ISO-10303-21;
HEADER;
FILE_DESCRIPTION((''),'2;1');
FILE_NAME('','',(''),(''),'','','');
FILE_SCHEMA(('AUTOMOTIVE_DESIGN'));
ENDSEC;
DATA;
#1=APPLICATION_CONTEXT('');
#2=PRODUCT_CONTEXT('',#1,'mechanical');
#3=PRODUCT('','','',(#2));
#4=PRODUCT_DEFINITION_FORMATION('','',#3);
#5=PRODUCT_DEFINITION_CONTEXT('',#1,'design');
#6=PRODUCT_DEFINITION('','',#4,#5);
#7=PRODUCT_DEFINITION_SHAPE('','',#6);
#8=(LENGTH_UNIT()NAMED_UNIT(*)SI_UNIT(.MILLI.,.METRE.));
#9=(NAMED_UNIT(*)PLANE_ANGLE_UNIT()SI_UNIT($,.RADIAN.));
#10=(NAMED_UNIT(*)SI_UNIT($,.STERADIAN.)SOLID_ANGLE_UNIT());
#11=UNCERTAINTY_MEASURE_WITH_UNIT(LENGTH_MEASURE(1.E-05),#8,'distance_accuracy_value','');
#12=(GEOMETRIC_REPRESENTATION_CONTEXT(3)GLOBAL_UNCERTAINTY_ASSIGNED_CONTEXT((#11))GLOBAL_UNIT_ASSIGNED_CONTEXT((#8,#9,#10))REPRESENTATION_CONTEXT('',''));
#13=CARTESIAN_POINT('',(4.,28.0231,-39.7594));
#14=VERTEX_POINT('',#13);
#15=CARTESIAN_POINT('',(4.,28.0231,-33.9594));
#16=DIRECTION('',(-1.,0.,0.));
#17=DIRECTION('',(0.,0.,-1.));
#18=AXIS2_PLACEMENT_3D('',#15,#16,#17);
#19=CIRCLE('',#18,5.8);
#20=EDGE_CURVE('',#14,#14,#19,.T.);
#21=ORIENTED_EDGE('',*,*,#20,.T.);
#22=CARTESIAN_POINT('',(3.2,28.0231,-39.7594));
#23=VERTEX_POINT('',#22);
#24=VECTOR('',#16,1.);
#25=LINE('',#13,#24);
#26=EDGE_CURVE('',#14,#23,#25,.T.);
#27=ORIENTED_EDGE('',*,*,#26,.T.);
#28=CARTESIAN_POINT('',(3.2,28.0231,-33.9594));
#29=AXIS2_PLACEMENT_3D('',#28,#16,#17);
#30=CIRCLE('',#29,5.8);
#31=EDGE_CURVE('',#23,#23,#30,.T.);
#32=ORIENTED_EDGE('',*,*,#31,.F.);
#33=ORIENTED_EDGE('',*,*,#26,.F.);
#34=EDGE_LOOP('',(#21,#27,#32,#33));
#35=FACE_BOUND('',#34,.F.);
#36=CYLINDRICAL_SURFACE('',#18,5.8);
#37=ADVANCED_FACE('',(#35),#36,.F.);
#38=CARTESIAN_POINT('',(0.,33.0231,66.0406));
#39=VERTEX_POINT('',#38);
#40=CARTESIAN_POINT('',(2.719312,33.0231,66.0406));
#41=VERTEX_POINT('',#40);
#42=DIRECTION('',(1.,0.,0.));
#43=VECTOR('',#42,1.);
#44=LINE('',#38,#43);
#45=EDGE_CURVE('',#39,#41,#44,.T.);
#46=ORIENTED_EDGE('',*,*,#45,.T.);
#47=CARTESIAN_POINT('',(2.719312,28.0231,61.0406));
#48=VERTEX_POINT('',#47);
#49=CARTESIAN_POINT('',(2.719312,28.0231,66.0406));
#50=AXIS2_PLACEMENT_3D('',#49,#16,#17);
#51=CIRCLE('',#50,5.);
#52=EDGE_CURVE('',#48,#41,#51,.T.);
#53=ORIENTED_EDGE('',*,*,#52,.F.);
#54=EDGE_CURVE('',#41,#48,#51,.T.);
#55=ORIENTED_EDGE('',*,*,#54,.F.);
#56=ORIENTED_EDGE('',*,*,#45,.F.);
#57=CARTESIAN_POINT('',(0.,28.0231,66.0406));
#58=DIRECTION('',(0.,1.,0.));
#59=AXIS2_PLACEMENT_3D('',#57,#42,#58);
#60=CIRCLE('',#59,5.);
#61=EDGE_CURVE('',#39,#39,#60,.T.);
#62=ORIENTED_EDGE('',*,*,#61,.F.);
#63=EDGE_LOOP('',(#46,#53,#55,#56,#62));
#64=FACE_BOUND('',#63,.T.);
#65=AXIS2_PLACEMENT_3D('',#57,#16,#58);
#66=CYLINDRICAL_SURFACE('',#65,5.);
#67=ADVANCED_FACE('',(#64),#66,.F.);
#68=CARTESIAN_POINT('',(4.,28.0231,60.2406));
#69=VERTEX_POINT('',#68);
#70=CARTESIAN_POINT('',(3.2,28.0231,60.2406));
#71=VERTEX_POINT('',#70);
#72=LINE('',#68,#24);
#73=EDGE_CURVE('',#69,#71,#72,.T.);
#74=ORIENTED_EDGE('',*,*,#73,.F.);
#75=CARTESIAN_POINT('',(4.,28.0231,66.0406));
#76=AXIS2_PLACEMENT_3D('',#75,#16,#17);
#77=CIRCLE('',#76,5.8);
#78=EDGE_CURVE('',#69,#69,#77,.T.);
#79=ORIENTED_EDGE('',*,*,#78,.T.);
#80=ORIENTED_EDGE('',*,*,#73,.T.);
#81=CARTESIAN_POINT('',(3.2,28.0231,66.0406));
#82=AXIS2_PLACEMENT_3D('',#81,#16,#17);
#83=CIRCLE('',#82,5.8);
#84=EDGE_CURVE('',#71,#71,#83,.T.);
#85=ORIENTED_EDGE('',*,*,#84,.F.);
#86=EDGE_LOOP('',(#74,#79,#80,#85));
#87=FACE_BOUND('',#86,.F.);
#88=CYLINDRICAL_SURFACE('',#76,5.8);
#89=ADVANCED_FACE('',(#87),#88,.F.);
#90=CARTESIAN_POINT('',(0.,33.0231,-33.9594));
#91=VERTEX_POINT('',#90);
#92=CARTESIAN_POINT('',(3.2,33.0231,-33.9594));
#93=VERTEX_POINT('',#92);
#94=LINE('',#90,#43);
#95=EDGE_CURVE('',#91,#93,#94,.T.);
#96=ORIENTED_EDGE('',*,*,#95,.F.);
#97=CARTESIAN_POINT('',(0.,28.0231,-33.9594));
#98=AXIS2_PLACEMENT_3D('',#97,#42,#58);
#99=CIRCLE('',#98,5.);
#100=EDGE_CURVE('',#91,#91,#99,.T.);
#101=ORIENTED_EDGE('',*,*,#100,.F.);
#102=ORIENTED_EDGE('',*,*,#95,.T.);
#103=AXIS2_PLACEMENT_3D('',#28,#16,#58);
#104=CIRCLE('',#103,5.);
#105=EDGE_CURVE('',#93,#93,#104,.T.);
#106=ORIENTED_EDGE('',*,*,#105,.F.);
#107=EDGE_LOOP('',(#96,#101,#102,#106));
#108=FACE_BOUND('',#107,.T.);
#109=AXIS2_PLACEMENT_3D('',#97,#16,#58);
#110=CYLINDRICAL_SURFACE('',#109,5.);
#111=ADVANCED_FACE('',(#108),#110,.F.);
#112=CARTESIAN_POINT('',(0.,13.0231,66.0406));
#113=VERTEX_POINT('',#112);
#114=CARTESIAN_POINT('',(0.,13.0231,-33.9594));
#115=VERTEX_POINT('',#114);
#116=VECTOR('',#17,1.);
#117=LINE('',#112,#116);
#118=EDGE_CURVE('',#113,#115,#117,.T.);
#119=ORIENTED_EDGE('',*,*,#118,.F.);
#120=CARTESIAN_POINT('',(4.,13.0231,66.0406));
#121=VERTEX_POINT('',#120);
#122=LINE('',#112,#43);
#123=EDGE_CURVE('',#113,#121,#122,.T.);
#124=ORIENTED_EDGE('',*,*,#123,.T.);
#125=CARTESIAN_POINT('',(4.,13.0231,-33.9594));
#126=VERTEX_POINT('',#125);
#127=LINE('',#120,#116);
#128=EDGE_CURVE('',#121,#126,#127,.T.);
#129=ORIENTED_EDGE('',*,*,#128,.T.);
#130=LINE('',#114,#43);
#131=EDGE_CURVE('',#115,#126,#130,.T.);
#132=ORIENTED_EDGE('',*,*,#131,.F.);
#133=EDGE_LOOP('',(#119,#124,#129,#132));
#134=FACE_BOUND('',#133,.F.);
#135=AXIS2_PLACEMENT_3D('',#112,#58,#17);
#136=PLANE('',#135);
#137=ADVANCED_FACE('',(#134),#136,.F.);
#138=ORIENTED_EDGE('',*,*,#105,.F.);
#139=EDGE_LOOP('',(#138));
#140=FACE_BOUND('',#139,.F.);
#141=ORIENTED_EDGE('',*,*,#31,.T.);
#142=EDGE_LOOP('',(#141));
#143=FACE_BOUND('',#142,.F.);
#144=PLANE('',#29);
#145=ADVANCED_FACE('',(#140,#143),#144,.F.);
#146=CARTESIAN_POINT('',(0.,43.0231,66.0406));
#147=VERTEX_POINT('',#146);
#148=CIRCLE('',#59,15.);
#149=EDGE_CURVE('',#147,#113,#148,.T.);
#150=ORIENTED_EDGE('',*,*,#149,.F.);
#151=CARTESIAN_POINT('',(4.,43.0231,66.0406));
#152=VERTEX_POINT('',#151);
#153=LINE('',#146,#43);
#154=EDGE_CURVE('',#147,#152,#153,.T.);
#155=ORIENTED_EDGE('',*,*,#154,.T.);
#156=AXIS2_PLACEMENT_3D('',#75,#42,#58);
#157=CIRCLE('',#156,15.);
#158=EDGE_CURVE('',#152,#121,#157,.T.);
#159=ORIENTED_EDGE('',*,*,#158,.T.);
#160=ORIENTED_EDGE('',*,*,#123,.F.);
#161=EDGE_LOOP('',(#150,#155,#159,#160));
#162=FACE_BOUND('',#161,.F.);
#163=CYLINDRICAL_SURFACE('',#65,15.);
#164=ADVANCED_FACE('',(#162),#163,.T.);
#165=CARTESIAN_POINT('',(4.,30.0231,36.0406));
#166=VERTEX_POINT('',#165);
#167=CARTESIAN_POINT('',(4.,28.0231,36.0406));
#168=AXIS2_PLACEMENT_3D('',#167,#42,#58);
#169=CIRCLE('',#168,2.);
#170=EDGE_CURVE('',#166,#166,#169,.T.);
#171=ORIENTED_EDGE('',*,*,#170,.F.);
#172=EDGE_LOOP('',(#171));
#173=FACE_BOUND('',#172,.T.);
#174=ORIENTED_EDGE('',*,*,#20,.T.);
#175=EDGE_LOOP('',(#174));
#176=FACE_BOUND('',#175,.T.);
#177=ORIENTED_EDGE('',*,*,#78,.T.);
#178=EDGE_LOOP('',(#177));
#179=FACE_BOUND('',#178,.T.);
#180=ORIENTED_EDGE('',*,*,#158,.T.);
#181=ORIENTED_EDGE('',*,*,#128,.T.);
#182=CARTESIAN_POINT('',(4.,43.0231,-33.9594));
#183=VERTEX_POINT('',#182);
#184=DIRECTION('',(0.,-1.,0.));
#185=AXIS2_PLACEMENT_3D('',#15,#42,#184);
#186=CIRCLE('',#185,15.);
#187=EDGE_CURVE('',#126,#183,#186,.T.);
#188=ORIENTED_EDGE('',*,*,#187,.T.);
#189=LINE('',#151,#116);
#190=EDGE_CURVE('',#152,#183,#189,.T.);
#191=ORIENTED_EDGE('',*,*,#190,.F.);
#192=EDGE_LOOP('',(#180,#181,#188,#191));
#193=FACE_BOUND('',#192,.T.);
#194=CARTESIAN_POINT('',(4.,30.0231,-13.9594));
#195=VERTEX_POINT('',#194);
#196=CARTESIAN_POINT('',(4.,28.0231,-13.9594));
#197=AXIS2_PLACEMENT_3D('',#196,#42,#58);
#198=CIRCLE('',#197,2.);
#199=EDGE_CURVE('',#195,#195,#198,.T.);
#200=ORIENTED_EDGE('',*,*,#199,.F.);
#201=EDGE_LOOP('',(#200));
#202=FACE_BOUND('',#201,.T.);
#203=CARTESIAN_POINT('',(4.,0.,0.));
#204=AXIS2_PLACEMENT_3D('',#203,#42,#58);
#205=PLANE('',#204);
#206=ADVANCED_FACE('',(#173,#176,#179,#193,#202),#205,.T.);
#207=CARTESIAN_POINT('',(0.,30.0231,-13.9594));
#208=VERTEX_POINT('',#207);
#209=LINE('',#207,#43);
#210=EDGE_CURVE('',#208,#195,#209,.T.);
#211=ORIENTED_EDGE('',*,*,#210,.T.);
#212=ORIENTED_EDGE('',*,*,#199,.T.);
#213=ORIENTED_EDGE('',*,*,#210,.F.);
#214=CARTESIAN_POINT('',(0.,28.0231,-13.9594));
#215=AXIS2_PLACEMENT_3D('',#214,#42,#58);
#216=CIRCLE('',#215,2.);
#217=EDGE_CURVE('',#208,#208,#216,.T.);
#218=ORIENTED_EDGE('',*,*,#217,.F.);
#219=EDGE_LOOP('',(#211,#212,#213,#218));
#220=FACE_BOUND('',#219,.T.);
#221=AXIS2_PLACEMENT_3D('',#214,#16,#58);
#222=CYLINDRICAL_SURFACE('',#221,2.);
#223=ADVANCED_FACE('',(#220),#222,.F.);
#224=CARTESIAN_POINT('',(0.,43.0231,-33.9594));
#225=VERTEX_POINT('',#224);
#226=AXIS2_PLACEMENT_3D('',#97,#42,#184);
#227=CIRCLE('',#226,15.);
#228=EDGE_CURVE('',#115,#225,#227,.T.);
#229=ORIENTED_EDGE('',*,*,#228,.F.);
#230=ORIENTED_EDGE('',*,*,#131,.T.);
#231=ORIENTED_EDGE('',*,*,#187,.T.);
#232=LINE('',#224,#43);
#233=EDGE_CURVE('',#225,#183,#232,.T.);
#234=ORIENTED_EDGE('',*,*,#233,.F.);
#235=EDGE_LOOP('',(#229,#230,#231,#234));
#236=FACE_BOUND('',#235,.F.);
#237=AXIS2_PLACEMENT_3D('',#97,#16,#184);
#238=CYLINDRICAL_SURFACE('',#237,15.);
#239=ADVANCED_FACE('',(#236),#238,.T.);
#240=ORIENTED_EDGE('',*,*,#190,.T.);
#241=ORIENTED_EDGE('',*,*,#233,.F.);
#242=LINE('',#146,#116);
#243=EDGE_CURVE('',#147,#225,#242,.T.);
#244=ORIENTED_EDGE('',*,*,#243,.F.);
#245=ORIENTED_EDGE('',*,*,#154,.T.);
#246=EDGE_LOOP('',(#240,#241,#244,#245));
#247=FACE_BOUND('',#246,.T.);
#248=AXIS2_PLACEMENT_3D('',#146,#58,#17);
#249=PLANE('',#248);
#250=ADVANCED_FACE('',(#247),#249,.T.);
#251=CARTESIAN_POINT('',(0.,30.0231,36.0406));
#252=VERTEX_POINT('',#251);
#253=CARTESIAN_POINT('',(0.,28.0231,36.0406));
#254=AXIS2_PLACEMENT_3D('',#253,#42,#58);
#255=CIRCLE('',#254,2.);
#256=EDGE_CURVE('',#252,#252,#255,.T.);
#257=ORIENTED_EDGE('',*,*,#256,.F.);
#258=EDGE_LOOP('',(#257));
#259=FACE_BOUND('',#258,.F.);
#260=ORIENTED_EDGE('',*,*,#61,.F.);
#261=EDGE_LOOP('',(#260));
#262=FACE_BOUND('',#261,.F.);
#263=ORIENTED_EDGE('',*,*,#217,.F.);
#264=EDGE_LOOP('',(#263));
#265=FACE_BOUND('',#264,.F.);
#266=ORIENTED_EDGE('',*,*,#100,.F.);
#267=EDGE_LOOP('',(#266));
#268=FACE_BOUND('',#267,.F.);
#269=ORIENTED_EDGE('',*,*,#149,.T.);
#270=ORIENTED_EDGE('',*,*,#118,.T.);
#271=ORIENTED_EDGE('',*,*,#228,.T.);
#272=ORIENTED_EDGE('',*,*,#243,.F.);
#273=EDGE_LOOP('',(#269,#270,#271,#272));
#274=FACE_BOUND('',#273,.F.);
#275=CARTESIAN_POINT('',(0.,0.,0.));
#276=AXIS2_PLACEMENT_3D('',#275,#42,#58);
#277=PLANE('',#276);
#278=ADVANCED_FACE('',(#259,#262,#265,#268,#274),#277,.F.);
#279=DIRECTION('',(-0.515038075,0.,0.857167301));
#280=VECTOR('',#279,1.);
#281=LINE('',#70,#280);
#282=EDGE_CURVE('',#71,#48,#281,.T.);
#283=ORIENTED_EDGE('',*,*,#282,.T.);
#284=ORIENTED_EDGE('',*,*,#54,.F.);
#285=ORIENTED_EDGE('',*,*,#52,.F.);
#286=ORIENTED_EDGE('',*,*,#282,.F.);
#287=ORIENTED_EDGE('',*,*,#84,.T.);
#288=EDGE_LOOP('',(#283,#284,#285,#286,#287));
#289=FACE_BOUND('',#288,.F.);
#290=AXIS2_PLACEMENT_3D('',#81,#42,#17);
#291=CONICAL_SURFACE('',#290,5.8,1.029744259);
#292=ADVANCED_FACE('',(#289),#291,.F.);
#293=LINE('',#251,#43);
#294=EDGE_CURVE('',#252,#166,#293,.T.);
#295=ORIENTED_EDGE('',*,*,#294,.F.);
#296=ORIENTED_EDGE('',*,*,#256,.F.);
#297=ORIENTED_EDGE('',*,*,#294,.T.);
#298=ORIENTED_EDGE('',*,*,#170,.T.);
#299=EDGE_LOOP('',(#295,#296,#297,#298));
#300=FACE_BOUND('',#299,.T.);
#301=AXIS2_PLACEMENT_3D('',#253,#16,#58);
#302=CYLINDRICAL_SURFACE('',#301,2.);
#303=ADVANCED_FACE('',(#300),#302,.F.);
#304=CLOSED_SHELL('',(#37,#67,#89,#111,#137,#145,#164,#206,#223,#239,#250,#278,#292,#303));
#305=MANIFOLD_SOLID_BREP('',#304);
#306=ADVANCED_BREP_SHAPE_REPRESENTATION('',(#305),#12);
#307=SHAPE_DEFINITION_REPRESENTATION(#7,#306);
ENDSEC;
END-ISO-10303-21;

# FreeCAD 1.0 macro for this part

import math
import FreeCAD as App
import Part
import Sketcher
Q = App.Units.Quantity

doc = App.newDocument("Part")
params = doc.addObject("Spreadsheet::Sheet", "Params")
for row, (alias, value) in enumerate([
    ("sketch1_diameter", "10 mm"),
    ("sketch1_diameter2", "4 mm"),
    ("sketch1_radius", "15 mm"),
    ("sketch1_height", "100 mm"),
    ("pad1_length", "4 mm"),
    ("sketch2_diameter", "11.6 mm"),
    ("hole_diameter", "11.6 mm"),
    ("hole_depth", "0.8 mm"),
    ("sketch3_diameter", "11.6 mm"),
    ("hole2_diameter", "11.6 mm"),
    ("hole2_depth", "0.8 mm"),
], start=1):
    params.set(f"A{row}", alias)
    params.set(f"B{row}", "=" + value)
    params.setAlias(f"B{row}", alias)

body = doc.addObject("PartDesign::Body", "Body")

# Sketch on YZ plane
sketch1 = doc.addObject("Sketcher::SketchObject", "Sketch")
body.addObject(sketch1)
sketch1.AttachmentSupport = (doc.YZ_Plane, [""])
sketch1.MapMode = "FlatFace"
sketch1.addGeometry([
    Part.LineSegment(App.Vector(43.0231, -33.9594, 0), App.Vector(43.0231, 66.0406, 0)),  # 0
    Part.ArcOfCircle(Part.Circle(App.Vector(28.0231, 66.0406, 0), App.Vector(0, 0, 1), 15), math.radians(0), math.radians(180)),  # 1
    Part.LineSegment(App.Vector(13.0231, 66.0406, 0), App.Vector(13.0231, -33.9594, 0)),  # 2
    Part.ArcOfCircle(Part.Circle(App.Vector(28.0231, -33.9594, 0), App.Vector(0, 0, 1), 15), math.radians(180), math.radians(360)),  # 3
    Part.Circle(App.Vector(28.0231, -33.9594, 0), App.Vector(0, 0, 1), 5),  # 4
    Part.Circle(App.Vector(28.0231, -13.9594, 0), App.Vector(0, 0, 1), 2),  # 5
    Part.Circle(App.Vector(28.0231, 36.0406, 0), App.Vector(0, 0, 1), 2),  # 6
    Part.Circle(App.Vector(28.0231, 66.0406, 0), App.Vector(0, 0, 1), 5),  # 7
], False)
sketch1.addConstraint([
    Sketcher.Constraint("Tangent", 0, 2, 1, 1),
    Sketcher.Constraint("Tangent", 1, 2, 2, 1),
    Sketcher.Constraint("Tangent", 2, 2, 3, 1),
    Sketcher.Constraint("Tangent", 3, 2, 0, 1),
    Sketcher.Constraint("Vertical", 0),
    Sketcher.Constraint("Vertical", 2),
    Sketcher.Constraint("Coincident", 4, 3, 3, 3),
    Sketcher.Constraint("Coincident", 7, 3, 1, 3),
    Sketcher.Constraint("Equal", 5, 6),
    Sketcher.Constraint("Equal", 4, 7),
    Sketcher.Constraint("Vertical", 4, 3, 5, 3),
    Sketcher.Constraint("Vertical", 5, 3, 6, 3),
    Sketcher.Constraint("Diameter", 4, Q("10 mm")),
    Sketcher.Constraint("Diameter", 5, Q("4 mm")),
    Sketcher.Constraint("Radius", 1, Q("15 mm")),
    Sketcher.Constraint("DistanceY", 0, 1, 0, 2, Q("100 mm")),
    Sketcher.Constraint("DistanceY", 3, 3, 5, 3, Q("20 mm")),
    Sketcher.Constraint("DistanceY", 6, 3, 1, 3, Q("30 mm")),
    Sketcher.Constraint("DistanceX", -1, 1, 1, 3, Q("28.023 mm")),
    Sketcher.Constraint("DistanceY", -1, 1, 1, 3, Q("66.0406 mm")),
])
sketch1.setExpression("Constraints[12]", "Params.sketch1_diameter")
sketch1.setExpression("Constraints[13]", "Params.sketch1_diameter2")
sketch1.setExpression("Constraints[14]", "Params.sketch1_radius")
sketch1.setExpression("Constraints[15]", "Params.sketch1_height")
pad1 = doc.addObject("PartDesign::Pad", "Pad")
body.addObject(pad1)
pad1.Profile = sketch1
pad1.setExpression("Length", "Params.pad1_length")

# Sketch on YZ plane
sketch2 = doc.addObject("Sketcher::SketchObject", "Sketch001")
body.addObject(sketch2)
sketch2.AttachmentSupport = (doc.YZ_Plane, [""])
sketch2.MapMode = "FlatFace"
sketch2.AttachmentOffset = App.Placement(App.Vector(0, 0, 4), App.Rotation())
sketch2.addGeometry(Part.Circle(App.Vector(28.0231, 66.0406, 0), App.Vector(0, 0, 1), 5.8), False)
sketch2.addConstraint([
    Sketcher.Constraint("Diameter", 0, Q("11.6 mm")),
    Sketcher.Constraint("DistanceX", -1, 1, 0, 3, Q("28.023 mm")),
    Sketcher.Constraint("DistanceY", -1, 1, 0, 3, Q("66.0406 mm")),
])
sketch2.setExpression("Constraints[0]", "Params.sketch2_diameter")
doc.recompute()
hole = doc.addObject("PartDesign::Hole", "Hole")
body.addObject(hole)
hole.Profile = sketch2
hole.ThreadType = "None"
hole.setExpression("Diameter", "Params.hole_diameter")
hole.DepthType = "Dimension"
hole.setExpression("Depth", "Params.hole_depth")
hole.DrillPoint = "Angled"
hole.DrillPointAngle = 118

# Sketch on YZ plane
sketch3 = doc.addObject("Sketcher::SketchObject", "Sketch002")
body.addObject(sketch3)
sketch3.AttachmentSupport = (doc.YZ_Plane, [""])
sketch3.MapMode = "FlatFace"
sketch3.AttachmentOffset = App.Placement(App.Vector(0, 0, 4), App.Rotation())
sketch3.addGeometry(Part.Circle(App.Vector(28.0231, -33.9594, 0), App.Vector(0, 0, 1), 5.8), False)
sketch3.addConstraint([
    Sketcher.Constraint("Diameter", 0, Q("11.6 mm")),
    Sketcher.Constraint("DistanceX", -1, 1, 0, 3, Q("28.023 mm")),
    Sketcher.Constraint("DistanceY", 0, 3, -1, 1, Q("33.9594 mm")),
])
sketch3.setExpression("Constraints[0]", "Params.sketch3_diameter")
doc.recompute()
hole2 = doc.addObject("PartDesign::Hole", "Hole001")
body.addObject(hole2)
hole2.Profile = sketch3
hole2.ThreadType = "None"
hole2.setExpression("Diameter", "Params.hole2_diameter")
hole2.DepthType = "Dimension"
hole2.setExpression("Depth", "Params.hole2_depth")
hole2.DrillPoint = "Flat"

doc.recompute()
